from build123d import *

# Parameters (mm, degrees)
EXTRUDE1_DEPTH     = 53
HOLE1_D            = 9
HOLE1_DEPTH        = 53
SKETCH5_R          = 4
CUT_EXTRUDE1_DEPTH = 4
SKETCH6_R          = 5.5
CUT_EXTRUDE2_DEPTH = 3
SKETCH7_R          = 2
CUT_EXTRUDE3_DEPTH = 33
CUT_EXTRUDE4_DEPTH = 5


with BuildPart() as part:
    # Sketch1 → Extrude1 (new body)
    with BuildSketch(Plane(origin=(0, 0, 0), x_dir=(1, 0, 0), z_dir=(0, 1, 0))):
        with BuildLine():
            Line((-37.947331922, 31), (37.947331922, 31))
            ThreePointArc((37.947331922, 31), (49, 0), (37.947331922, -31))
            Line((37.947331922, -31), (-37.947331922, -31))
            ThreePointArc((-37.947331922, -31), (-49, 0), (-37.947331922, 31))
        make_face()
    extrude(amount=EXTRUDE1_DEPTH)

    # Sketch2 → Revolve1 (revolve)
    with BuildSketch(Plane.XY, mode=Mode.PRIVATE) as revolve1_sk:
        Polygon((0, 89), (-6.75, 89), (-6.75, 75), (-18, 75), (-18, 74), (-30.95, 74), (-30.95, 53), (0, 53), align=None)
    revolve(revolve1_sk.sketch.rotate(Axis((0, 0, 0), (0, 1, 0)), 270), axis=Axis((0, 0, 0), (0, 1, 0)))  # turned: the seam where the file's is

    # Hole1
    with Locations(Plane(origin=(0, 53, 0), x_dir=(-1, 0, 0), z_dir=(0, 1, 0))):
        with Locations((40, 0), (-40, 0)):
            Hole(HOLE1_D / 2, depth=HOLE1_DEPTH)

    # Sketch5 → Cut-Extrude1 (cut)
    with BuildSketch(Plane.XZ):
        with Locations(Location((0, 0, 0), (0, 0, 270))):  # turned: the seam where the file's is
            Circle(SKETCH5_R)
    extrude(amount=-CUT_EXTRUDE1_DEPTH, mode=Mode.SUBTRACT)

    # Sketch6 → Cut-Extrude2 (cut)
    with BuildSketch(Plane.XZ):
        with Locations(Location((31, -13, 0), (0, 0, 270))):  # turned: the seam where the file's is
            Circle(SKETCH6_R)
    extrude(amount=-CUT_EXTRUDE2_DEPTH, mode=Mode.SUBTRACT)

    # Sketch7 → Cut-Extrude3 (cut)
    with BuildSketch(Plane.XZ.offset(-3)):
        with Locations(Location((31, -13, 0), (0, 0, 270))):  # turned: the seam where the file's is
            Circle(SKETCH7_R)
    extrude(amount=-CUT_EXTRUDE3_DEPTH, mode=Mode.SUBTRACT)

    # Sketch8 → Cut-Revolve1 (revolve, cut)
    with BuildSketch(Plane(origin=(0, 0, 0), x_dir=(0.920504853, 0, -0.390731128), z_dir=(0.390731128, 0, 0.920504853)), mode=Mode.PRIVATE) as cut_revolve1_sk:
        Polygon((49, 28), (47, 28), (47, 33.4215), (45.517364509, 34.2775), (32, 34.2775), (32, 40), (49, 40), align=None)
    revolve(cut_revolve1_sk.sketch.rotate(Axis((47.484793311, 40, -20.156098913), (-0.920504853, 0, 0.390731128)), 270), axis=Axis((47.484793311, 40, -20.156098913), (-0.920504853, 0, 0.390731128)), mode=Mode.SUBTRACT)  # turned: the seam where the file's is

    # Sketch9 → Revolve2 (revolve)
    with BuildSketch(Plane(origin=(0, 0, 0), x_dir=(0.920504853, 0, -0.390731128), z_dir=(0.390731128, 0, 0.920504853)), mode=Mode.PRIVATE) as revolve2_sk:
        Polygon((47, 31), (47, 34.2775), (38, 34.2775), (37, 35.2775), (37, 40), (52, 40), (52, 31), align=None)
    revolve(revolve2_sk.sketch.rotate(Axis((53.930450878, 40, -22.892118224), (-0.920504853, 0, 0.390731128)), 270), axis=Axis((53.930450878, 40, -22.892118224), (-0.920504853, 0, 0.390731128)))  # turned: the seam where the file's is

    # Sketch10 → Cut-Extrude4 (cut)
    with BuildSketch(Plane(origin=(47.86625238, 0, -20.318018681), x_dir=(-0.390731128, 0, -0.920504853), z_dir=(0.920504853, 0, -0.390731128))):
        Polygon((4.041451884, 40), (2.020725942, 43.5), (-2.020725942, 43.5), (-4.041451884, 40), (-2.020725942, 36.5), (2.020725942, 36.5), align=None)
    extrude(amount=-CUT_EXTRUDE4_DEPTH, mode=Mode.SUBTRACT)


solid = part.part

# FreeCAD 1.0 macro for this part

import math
import FreeCAD as App
import Part
import Sketcher
Q = App.Units.Quantity

doc = App.newDocument("Part")
body = doc.addObject("PartDesign::Body", "Body")

# Sketch on XZ plane
sketch1 = body.newObject("Sketcher::SketchObject", "Sketch")
sketch1.AttachmentSupport = (doc.getObject("XZ_Plane"), [""])
sketch1.MapMode = "FlatFace"
sketch1.addGeometry([
    Part.LineSegment(App.Vector(38, -31, 0), App.Vector(-38, -31, 0)),
    Part.ArcOfCircle(Part.Circle(App.Vector(0, 0, 0), App.Vector(0, 0, 1), 49), math.radians(141), math.radians(219)),
    Part.LineSegment(App.Vector(-38, 31, 0), App.Vector(38, 31, 0)),
    Part.ArcOfCircle(Part.Circle(App.Vector(0, 0, 0), App.Vector(0, 0, 1), 49), math.radians(-39), math.radians(39)),
], False)
sketch1.addConstraint([
    Sketcher.Constraint("Coincident", 0, 2, 1, 2),
    Sketcher.Constraint("Coincident", 1, 1, 2, 1),
    Sketcher.Constraint("Coincident", 2, 2, 3, 2),
    Sketcher.Constraint("Coincident", 3, 1, 0, 1),
    Sketcher.Constraint("Horizontal", 0),
    Sketcher.Constraint("Horizontal", 2),
    Sketcher.Constraint("Coincident", 1, 3, -1, 1),
    Sketcher.Constraint("Coincident", 3, 3, -1, 1),
    Sketcher.Constraint("Equal", 1, 3),
    Sketcher.Constraint("Vertical", 0, 2, 1, 1),
    Sketcher.Constraint("Radius", 1, 49.0),
    Sketcher.Constraint("DistanceY", 0, 2, -1, 1, 31.0),
])
pad1 = body.newObject("PartDesign::Pad", "Pad")
pad1.Profile = sketch1
pad1.Length = 53
pad1.Reversed = True

# Sketch on XY plane
sketch2 = body.newObject("Sketcher::SketchObject", "Sketch001")
sketch2.AttachmentSupport = (doc.getObject("XY_Plane"), [""])
sketch2.MapMode = "FlatFace"
sketch2.addGeometry([
    Part.LineSegment(App.Vector(0, 89, 0), App.Vector(-6.8, 89, 0)),  # 0
    Part.LineSegment(App.Vector(-6.8, 89, 0), App.Vector(-6.8, 75, 0)),  # 1
    Part.LineSegment(App.Vector(-6.8, 75, 0), App.Vector(-18, 75, 0)),  # 2
    Part.LineSegment(App.Vector(-18, 75, 0), App.Vector(-18, 74, 0)),  # 3
    Part.LineSegment(App.Vector(-18, 74, 0), App.Vector(-30.9, 74, 0)),  # 4
    Part.LineSegment(App.Vector(-30.9, 74, 0), App.Vector(-30.9, 53, 0)),  # 5
    Part.LineSegment(App.Vector(-30.9, 53, 0), App.Vector(0, 53, 0)),  # 6
    Part.LineSegment(App.Vector(0, 53, 0), App.Vector(0, 89, 0)),  # 7
], False)
sketch2.addConstraint([
    Sketcher.Constraint("Coincident", 0, 2, 1, 1),
    Sketcher.Constraint("Coincident", 1, 2, 2, 1),
    Sketcher.Constraint("Coincident", 2, 2, 3, 1),
    Sketcher.Constraint("Coincident", 3, 2, 4, 1),
    Sketcher.Constraint("Coincident", 4, 2, 5, 1),
    Sketcher.Constraint("Coincident", 5, 2, 6, 1),
    Sketcher.Constraint("Coincident", 6, 2, 7, 1),
    Sketcher.Constraint("Coincident", 7, 2, 0, 1),
    Sketcher.Constraint("Horizontal", 0),
    Sketcher.Constraint("Vertical", 1),
    Sketcher.Constraint("Horizontal", 2),
    Sketcher.Constraint("Vertical", 3),
    Sketcher.Constraint("Horizontal", 4),
    Sketcher.Constraint("Vertical", 5),
    Sketcher.Constraint("Horizontal", 6),
    Sketcher.Constraint("Vertical", 7),
    Sketcher.Constraint("PointOnObject", 6, 2, -2),
    Sketcher.Constraint("DistanceY", 1, 2, 1, 1, 14.0),
    Sketcher.Constraint("DistanceY", 3, 2, 3, 1, 1.0),
    Sketcher.Constraint("DistanceY", 5, 2, 5, 1, 21.0),
    Sketcher.Constraint("DistanceY", -1, 1, 0, 2, 89.0),
    Sketcher.Constraint("DistanceX", 2, 2, -1, 1, 18.0),
    Sketcher.Constraint("DistanceX", 0, 2, 0, 1, 6.75),
    Sketcher.Constraint("DistanceX", 4, 2, 4, 1, 12.95),
])
revolution = body.newObject("PartDesign::Revolution", "Revolution")
revolution.Profile = sketch2
revolution.ReferenceAxis = (sketch2, ["V_Axis"])
revolution.Angle = 360

# Sketch on XZ plane
sketch3 = body.newObject("Sketcher::SketchObject", "Sketch002")
sketch3.AttachmentSupport = (doc.getObject("XZ_Plane"), [""])
sketch3.MapMode = "FlatFace"
sketch3.AttachmentOffset = App.Placement(App.Vector(0, 0, -53), App.Rotation())
sketch3.addGeometry([
    Part.Circle(App.Vector(-40, 0, 0), App.Vector(0, 0, 1), 4.5),
    Part.Circle(App.Vector(40, 0, 0), App.Vector(0, 0, 1), 4.5),
], False)
sketch3.addConstraint([
    Sketcher.Constraint("Equal", 0, 1),
    Sketcher.Constraint("Symmetric", 0, 3, 1, 3, -1, 1),
    Sketcher.Constraint("PointOnObject", 0, 3, -1),
    Sketcher.Constraint("Diameter", 0, 9.0),
    Sketcher.Constraint("DistanceX", 0, 3, -1, 1, 40.0),
])
doc.recompute()
hole = body.newObject("PartDesign::Hole", "Hole")
hole.Profile = sketch3
hole.ThreadType = "None"
hole.Diameter = 9
hole.DepthType = "Dimension"
hole.Depth = 53
hole.DrillPoint = "Flat"
hole.Reversed = True

# Sketch on XZ plane
sketch4 = body.newObject("Sketcher::SketchObject", "Sketch003")
sketch4.AttachmentSupport = (doc.getObject("XZ_Plane"), [""])
sketch4.MapMode = "FlatFace"
sketch4.addGeometry(Part.Circle(App.Vector(0, 0, 0), App.Vector(0, 0, 1), 4), False)
sketch4.addConstraint([
    Sketcher.Constraint("Coincident", 0, 3, -1, 1),
    Sketcher.Constraint("Diameter", 0, 8.0),
])
pocket1 = body.newObject("PartDesign::Pocket", "Pocket")
pocket1.Profile = sketch4
pocket1.Length = 4

# Sketch on XZ plane
sketch5 = body.newObject("Sketcher::SketchObject", "Sketch004")
sketch5.AttachmentSupport = (doc.getObject("XZ_Plane"), [""])
sketch5.MapMode = "FlatFace"
sketch5.addGeometry(Part.Circle(App.Vector(31, -13, 0), App.Vector(0, 0, 1), 6), False)
sketch5.addConstraint([
    Sketcher.Constraint("Diameter", 0, 11.0),
    Sketcher.Constraint("DistanceX", -1, 1, 0, 3, 31.0),
    Sketcher.Constraint("DistanceY", 0, 3, -1, 1, 13.0),
])
pocket2 = body.newObject("PartDesign::Pocket", "Pocket001")
pocket2.Profile = sketch5
pocket2.Length = 3

# Sketch on XZ plane
sketch6 = body.newObject("Sketcher::SketchObject", "Sketch005")
sketch6.AttachmentSupport = (doc.getObject("XZ_Plane"), [""])
sketch6.MapMode = "FlatFace"
sketch6.AttachmentOffset = App.Placement(App.Vector(0, 0, -3), App.Rotation())
sketch6.addGeometry(Part.Circle(App.Vector(31, -13, 0), App.Vector(0, 0, 1), 2), False)
sketch6.addConstraint([
    Sketcher.Constraint("Diameter", 0, 4.0),
    Sketcher.Constraint("DistanceX", -1, 1, 0, 3, 31.0),
    Sketcher.Constraint("DistanceY", 0, 3, -1, 1, 13.0),
])
pocket3 = body.newObject("PartDesign::Pocket", "Pocket002")
pocket3.Profile = sketch6
pocket3.Length = 33

# Sketch on an angled plane
sketch7 = body.newObject("Sketcher::SketchObject", "Sketch006")
sketch7.Placement = App.Placement(App.Vector(0, 0, 0), App.Rotation(App.Vector(0.920504854, 0, -0.390731128), App.Vector(0, 1.000000001, 0), App.Vector(0.390731128, 0, 0.920504854), "ZXY"))
sketch7.addGeometry([
    Part.LineSegment(App.Vector(47, 28, 0), App.Vector(49, 28, 0)),  # 0
    Part.LineSegment(App.Vector(49, 28, 0), App.Vector(49, 40, 0)),  # 1
    Part.LineSegment(App.Vector(49, 40, 0), App.Vector(32, 40, 0)),  # 2
    Part.LineSegment(App.Vector(32, 40, 0), App.Vector(32, 34.3, 0)),  # 3
    Part.LineSegment(App.Vector(32, 34.3, 0), App.Vector(45.5, 34.3, 0)),  # 4
    Part.LineSegment(App.Vector(45.5, 34.3, 0), App.Vector(47, 33.4, 0)),  # 5
    Part.LineSegment(App.Vector(47, 33.4, 0), App.Vector(47, 28, 0)),  # 6
], False)
sketch7.addGeometry(Part.LineSegment(App.Vector(49, 40, 0), App.Vector(32, 40, 0)), True)  # axis
sketch7.addConstraint([
    Sketcher.Constraint("Coincident", 0, 2, 1, 1),
    Sketcher.Constraint("Coincident", 1, 2, 2, 1),
    Sketcher.Constraint("Coincident", 2, 2, 3, 1),
    Sketcher.Constraint("Coincident", 3, 2, 4, 1),
    Sketcher.Constraint("Coincident", 4, 2, 5, 1),
    Sketcher.Constraint("Coincident", 5, 2, 6, 1),
    Sketcher.Constraint("Coincident", 6, 2, 0, 1),
    Sketcher.Constraint("Horizontal", 0),
    Sketcher.Constraint("Vertical", 1),
    Sketcher.Constraint("Horizontal", 2),
    Sketcher.Constraint("Vertical", 3),
    Sketcher.Constraint("Horizontal", 4),
    Sketcher.Constraint("Vertical", 6),
    Sketcher.Constraint("Horizontal", 7),
    Sketcher.Constraint("Coincident", 7, 1, 1, 2),
    Sketcher.Constraint("Vertical", 3, 2, 7, 2),
    Sketcher.Constraint("DistanceX", 0, 1, 0, 2, 2.0),
    Sketcher.Constraint("DistanceX", 2, 2, 2, 1, 17.0),
    Sketcher.Constraint("DistanceY", 1, 1, 1, 2, 12.0),
    Sketcher.Constraint("Angle", 5, Q("-30 deg")),
    Sketcher.Constraint("DistanceX", -1, 1, 0, 2, 49.0),
    Sketcher.Constraint("DistanceY", -1, 1, 0, 2, 28.0),
    Sketcher.Constraint("Distance", 5, 1.712),
    Sketcher.Constraint("DistanceY", 3, 2, 3, 1, 5.7225),
])
groove = body.newObject("PartDesign::Groove", "Groove")
groove.Profile = sketch7
groove.ReferenceAxis = (sketch7, ["Axis0"])
groove.Angle = 360

# Sketch on an angled plane
sketch8 = body.newObject("Sketcher::SketchObject", "Sketch007")
sketch8.Placement = App.Placement(App.Vector(0, 0, 0), App.Rotation(App.Vector(0.920504854, 0, -0.390731128), App.Vector(0, 1.000000001, 0), App.Vector(0.390731128, 0, 0.920504854), "ZXY"))
sketch8.addGeometry([
    Part.LineSegment(App.Vector(47, 34.3, 0), App.Vector(47, 31, 0)),  # 0
    Part.LineSegment(App.Vector(47, 31, 0), App.Vector(52, 31, 0)),  # 1
    Part.LineSegment(App.Vector(52, 31, 0), App.Vector(52, 40, 0)),  # 2
    Part.LineSegment(App.Vector(52, 40, 0), App.Vector(37, 40, 0)),  # 3
    Part.LineSegment(App.Vector(37, 40, 0), App.Vector(37, 35.3, 0)),  # 4
    Part.LineSegment(App.Vector(37, 35.3, 0), App.Vector(38, 34.3, 0)),  # 5
    Part.LineSegment(App.Vector(38, 34.3, 0), App.Vector(47, 34.3, 0)),  # 6
], False)
sketch8.addGeometry(Part.LineSegment(App.Vector(52, 40, 0), App.Vector(37, 40, 0)), True)  # axis
sketch8.addConstraint([
    Sketcher.Constraint("Coincident", 0, 2, 1, 1),
    Sketcher.Constraint("Coincident", 1, 2, 2, 1),
    Sketcher.Constraint("Coincident", 2, 2, 3, 1),
    Sketcher.Constraint("Coincident", 3, 2, 4, 1),
    Sketcher.Constraint("Coincident", 4, 2, 5, 1),
    Sketcher.Constraint("Coincident", 5, 2, 6, 1),
    Sketcher.Constraint("Coincident", 6, 2, 0, 1),
    Sketcher.Constraint("Vertical", 0),
    Sketcher.Constraint("Horizontal", 1),
    Sketcher.Constraint("Vertical", 2),
    Sketcher.Constraint("Horizontal", 3),
    Sketcher.Constraint("Vertical", 4),
    Sketcher.Constraint("Horizontal", 6),
    Sketcher.Constraint("Horizontal", 7),
    Sketcher.Constraint("Coincident", 7, 1, 2, 2),
    Sketcher.Constraint("Vertical", 4, 2, 7, 2),
    Sketcher.Constraint("Equal", 6, 2),
    Sketcher.Constraint("DistanceX", 1, 1, 1, 2, 5.0),
    Sketcher.Constraint("DistanceX", 3, 2, 3, 1, 15.0),
    Sketcher.Constraint("DistanceX", 6, 1, 6, 2, 9.0),
    Sketcher.Constraint("Angle", 5, Q("-45 deg")),
    Sketcher.Constraint("DistanceX", -1, 1, 0, 2, 47.0),
    Sketcher.Constraint("DistanceY", -1, 1, 0, 2, 31.0),
    Sketcher.Constraint("DistanceY", 0, 2, 0, 1, 3.2775),
])
revolution2 = body.newObject("PartDesign::Revolution", "Revolution001")
revolution2.Profile = sketch8
revolution2.ReferenceAxis = (sketch8, ["Axis0"])
revolution2.Angle = 360

# Sketch on an angled plane
sketch9 = body.newObject("Sketcher::SketchObject", "Sketch008")
sketch9.Placement = App.Placement(App.Vector(47.866252, 0, -20.318019), App.Rotation(App.Vector(-0.390731128, 0, -0.920504854), App.Vector(0, 1.000000001, 0), App.Vector(0.920504854, 0, -0.390731128), "ZXY"))
sketch9.addGeometry([
    Part.LineSegment(App.Vector(4, 40, 0), App.Vector(2, 43.5, 0)),  # 0
    Part.LineSegment(App.Vector(2, 43.5, 0), App.Vector(-2, 43.5, 0)),  # 1
    Part.LineSegment(App.Vector(-2, 43.5, 0), App.Vector(-4, 40, 0)),  # 2
    Part.LineSegment(App.Vector(-4, 40, 0), App.Vector(-2, 36.5, 0)),  # 3
    Part.LineSegment(App.Vector(-2, 36.5, 0), App.Vector(2, 36.5, 0)),  # 4
    Part.LineSegment(App.Vector(2, 36.5, 0), App.Vector(4, 40, 0)),  # 5
], False)
sketch9.addConstraint([
    Sketcher.Constraint("Coincident", 0, 2, 1, 1),
    Sketcher.Constraint("Coincident", 1, 2, 2, 1),
    Sketcher.Constraint("Coincident", 2, 2, 3, 1),
    Sketcher.Constraint("Coincident", 3, 2, 4, 1),
    Sketcher.Constraint("Coincident", 4, 2, 5, 1),
    Sketcher.Constraint("Coincident", 5, 2, 0, 1),
    Sketcher.Constraint("Horizontal", 1),
    Sketcher.Constraint("Horizontal", 4),
    Sketcher.Constraint("Symmetric", 2, 2, 5, 2, -2),
    Sketcher.Constraint("Parallel", 0, 3),
    Sketcher.Constraint("Parallel", 2, 5),
    Sketcher.Constraint("Vertical", 1, 2, 3, 2),
    Sketcher.Constraint("Vertical", 0, 2, 4, 2),
    Sketcher.Constraint("Angle", 0, Q("120 deg")),
    Sketcher.Constraint("DistanceY", -1, 1, 2, 2, 40.0),
    Sketcher.Constraint("DistanceY", 3, 2, 1, 2, 7.0),
    Sketcher.Constraint("DistanceX", 1, 2, 1, 1, 4.041452),
])
pocket4 = body.newObject("PartDesign::Pocket", "Pocket003")
pocket4.Profile = sketch9
pocket4.Length = 5

doc.recompute()
